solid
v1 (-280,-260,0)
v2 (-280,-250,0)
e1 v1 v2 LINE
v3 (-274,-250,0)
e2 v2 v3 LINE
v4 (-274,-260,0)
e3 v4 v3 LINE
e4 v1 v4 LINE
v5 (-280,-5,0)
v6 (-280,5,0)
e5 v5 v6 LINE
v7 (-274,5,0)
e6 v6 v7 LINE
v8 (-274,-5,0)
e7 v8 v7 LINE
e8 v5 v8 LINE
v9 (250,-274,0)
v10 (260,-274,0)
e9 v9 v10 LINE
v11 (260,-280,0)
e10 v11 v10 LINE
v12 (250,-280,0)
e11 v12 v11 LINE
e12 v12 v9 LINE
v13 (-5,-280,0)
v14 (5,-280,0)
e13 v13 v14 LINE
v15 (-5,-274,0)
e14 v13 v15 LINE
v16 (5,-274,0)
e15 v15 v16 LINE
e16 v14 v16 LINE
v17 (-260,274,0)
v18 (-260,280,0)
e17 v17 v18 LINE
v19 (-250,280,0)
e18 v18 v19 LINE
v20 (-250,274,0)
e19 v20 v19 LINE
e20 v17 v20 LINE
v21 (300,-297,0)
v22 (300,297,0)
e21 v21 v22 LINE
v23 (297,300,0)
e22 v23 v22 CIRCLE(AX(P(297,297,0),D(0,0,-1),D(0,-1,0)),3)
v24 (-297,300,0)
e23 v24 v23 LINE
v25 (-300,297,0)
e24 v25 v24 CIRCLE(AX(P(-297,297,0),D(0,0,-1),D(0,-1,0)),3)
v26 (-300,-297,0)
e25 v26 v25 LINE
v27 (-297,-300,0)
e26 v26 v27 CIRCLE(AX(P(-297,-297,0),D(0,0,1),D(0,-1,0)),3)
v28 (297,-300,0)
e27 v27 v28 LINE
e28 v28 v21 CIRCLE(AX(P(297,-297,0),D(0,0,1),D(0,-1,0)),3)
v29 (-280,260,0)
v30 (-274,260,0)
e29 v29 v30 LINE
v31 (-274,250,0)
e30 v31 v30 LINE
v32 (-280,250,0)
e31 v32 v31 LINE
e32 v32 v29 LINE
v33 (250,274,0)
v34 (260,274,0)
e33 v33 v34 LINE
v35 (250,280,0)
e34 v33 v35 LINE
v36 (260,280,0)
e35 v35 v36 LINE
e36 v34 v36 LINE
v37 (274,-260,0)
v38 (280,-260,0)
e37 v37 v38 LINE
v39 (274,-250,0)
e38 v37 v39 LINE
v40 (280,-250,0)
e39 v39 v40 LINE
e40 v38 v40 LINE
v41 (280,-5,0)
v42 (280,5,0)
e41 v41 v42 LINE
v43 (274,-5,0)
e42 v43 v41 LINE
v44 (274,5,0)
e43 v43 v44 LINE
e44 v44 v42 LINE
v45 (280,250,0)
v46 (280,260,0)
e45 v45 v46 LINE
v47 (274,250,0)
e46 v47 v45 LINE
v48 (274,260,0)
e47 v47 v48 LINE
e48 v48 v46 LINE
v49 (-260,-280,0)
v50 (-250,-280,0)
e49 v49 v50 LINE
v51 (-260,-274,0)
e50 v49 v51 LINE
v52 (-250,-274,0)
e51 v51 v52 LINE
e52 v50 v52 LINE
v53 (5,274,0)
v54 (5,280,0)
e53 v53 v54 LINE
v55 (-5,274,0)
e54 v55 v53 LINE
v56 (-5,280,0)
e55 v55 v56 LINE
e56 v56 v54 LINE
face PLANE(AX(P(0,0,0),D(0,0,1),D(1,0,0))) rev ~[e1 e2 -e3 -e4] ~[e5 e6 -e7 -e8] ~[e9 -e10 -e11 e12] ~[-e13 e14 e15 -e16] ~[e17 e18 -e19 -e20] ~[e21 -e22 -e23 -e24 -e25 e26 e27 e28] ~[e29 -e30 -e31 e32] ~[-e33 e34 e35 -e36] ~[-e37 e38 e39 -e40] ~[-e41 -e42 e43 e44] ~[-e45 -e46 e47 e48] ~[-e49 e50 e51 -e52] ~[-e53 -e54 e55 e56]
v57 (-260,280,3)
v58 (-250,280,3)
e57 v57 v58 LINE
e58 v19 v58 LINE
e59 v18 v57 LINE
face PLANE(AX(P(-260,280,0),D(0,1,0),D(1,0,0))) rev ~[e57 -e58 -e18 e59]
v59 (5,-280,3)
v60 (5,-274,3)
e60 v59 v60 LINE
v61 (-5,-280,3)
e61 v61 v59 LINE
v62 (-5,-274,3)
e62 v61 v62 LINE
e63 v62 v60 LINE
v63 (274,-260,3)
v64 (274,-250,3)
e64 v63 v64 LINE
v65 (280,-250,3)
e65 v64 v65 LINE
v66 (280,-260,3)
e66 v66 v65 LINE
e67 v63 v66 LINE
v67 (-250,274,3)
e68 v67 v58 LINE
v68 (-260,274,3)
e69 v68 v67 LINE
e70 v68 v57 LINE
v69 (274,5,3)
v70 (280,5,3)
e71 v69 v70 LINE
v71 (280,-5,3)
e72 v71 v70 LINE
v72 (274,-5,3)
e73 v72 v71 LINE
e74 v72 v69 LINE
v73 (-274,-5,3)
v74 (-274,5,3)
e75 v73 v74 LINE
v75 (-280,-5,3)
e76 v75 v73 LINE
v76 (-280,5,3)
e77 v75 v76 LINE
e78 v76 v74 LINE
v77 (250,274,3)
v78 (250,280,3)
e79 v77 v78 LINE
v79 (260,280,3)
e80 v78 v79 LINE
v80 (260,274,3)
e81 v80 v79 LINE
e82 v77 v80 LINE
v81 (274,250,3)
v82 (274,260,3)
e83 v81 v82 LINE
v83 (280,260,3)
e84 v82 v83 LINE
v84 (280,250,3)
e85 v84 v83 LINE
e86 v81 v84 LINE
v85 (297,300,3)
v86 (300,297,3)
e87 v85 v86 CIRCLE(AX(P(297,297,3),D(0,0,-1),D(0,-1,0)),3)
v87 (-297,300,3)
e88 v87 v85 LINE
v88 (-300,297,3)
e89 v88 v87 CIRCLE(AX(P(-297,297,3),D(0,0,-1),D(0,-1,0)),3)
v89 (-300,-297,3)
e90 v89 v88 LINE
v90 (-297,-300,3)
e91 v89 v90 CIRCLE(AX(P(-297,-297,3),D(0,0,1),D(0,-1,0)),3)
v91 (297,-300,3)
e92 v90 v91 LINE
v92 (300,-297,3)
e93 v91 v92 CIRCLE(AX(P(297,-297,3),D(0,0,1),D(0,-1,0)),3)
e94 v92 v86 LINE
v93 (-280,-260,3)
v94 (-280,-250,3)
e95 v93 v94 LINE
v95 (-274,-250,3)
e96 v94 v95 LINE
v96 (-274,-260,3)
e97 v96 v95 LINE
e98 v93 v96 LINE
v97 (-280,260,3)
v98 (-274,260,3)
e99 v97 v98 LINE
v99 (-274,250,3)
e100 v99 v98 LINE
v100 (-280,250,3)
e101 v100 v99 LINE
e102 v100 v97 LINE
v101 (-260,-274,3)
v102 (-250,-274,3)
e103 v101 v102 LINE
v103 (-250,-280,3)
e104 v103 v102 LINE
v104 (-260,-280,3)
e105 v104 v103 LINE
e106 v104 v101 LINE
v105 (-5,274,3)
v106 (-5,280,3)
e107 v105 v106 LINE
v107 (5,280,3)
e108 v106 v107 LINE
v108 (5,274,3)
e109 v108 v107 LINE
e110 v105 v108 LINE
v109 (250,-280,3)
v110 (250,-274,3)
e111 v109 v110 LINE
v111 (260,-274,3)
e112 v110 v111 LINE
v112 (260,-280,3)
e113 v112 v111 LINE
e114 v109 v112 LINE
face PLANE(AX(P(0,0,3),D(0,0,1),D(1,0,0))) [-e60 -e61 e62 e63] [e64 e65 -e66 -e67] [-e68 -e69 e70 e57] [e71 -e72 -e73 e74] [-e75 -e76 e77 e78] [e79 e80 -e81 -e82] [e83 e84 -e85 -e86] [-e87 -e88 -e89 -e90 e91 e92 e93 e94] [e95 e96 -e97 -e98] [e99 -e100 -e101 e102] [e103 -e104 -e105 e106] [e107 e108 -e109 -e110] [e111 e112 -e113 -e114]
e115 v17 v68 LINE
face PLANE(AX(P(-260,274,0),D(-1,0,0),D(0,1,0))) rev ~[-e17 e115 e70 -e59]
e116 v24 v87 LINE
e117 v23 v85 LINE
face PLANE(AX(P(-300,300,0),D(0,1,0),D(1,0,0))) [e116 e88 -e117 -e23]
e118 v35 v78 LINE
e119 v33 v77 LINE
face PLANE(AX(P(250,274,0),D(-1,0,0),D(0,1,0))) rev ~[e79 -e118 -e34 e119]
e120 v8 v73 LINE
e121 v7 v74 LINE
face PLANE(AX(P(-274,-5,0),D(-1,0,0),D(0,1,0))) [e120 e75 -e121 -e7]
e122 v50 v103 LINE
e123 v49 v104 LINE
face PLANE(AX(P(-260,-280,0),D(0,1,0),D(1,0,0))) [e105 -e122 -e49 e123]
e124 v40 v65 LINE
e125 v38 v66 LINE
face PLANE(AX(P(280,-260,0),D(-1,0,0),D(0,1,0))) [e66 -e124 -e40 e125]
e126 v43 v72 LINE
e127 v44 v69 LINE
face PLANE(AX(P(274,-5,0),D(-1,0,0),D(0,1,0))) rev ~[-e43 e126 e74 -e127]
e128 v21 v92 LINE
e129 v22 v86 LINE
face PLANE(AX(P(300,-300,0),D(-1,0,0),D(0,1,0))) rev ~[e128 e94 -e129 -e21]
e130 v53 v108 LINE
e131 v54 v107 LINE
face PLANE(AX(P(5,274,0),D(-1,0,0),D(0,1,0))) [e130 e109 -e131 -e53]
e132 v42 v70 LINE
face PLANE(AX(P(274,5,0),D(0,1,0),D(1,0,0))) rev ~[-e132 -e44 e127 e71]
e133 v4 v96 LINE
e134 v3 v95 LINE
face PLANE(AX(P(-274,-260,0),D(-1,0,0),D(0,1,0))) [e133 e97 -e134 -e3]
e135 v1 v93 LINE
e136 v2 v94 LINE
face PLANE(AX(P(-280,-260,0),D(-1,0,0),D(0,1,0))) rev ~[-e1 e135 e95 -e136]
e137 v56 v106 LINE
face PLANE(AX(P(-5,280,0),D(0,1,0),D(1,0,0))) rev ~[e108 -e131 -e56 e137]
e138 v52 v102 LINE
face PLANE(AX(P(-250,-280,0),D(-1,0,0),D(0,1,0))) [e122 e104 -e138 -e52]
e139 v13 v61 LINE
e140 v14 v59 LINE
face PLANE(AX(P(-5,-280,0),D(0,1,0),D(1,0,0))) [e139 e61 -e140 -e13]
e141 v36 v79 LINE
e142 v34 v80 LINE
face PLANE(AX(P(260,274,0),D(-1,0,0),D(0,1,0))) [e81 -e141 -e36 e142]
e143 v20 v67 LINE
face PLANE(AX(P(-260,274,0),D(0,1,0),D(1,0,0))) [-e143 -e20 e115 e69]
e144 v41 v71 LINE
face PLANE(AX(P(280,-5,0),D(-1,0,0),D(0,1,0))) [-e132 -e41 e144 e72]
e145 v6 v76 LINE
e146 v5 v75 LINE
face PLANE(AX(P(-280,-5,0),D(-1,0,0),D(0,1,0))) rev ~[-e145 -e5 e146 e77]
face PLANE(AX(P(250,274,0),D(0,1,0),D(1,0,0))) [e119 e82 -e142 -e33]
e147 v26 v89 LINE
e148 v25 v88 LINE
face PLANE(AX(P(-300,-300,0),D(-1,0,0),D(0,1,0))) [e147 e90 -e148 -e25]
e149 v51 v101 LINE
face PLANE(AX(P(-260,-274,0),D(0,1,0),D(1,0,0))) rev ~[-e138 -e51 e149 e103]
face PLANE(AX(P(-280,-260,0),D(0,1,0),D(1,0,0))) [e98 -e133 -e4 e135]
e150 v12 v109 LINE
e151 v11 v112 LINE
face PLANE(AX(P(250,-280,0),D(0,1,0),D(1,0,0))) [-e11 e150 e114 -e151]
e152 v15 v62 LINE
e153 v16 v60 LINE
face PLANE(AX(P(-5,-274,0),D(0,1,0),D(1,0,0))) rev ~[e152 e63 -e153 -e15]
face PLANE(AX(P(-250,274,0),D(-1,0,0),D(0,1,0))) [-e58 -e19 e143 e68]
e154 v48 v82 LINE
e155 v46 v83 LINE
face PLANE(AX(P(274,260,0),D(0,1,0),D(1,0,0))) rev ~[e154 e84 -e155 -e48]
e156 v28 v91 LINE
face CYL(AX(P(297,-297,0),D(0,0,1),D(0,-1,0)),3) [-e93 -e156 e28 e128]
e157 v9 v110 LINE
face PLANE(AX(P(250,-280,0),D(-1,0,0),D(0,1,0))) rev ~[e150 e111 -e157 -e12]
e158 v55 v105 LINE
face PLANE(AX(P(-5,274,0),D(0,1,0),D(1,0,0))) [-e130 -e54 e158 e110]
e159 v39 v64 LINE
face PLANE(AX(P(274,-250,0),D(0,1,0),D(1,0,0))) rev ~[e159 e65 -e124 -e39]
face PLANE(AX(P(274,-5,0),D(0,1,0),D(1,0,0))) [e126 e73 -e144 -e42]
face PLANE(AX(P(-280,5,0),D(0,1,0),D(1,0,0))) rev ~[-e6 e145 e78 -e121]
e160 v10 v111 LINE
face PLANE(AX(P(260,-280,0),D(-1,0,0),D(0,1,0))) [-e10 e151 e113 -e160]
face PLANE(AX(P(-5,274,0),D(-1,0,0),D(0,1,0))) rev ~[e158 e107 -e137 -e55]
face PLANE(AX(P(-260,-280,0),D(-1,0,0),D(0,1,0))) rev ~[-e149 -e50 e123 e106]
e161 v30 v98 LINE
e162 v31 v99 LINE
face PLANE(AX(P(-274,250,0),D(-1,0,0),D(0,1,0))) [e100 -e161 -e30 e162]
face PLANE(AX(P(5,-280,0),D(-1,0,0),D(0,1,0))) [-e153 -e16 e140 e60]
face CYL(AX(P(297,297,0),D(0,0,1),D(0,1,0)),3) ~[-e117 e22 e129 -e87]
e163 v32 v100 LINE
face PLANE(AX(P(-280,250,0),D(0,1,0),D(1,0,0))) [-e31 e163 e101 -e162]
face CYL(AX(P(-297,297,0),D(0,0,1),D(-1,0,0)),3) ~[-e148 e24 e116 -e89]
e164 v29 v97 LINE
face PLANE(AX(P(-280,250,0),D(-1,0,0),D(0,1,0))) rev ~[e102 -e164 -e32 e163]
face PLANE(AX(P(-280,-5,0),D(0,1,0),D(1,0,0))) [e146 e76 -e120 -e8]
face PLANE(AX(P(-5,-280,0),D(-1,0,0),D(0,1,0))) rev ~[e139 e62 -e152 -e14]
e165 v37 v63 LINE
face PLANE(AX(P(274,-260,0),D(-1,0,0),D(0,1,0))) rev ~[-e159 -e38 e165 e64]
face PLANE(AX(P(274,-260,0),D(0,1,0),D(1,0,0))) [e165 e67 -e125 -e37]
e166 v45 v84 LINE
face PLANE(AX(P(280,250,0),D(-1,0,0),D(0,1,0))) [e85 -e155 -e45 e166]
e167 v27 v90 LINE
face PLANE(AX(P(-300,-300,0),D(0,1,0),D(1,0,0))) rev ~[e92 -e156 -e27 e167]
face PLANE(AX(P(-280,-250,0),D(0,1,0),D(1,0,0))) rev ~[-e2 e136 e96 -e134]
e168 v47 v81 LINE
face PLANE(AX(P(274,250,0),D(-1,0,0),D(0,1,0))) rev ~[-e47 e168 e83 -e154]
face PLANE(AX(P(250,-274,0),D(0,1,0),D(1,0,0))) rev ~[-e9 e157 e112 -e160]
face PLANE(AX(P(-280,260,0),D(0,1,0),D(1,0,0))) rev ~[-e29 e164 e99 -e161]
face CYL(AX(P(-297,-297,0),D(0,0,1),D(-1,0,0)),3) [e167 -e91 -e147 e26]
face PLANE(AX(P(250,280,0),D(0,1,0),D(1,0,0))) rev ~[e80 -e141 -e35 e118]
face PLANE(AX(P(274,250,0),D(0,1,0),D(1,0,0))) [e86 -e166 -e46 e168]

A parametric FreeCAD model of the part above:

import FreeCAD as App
import Part
import Sketcher
from FreeCAD import Vector
Q = App.Units.Quantity


def edges_at(feature, points):
    """Names of the edges that pass closest to the given points."""
    edges = feature.Shape.Edges
    near = lambda p: min(range(len(edges)), key=lambda i: edges[i].distToShape(Part.Vertex(*p))[0])
    return sorted({f"Edge{near(p) + 1}" for p in points})


def add_polygon(sketch, points):
    """Adds a closed chain of lines whose ends are joined by coincident constraints."""
    first, n = sketch.GeometryCount, len(points)
    for a, b in zip(points, points[1:] + points[:1]):
        sketch.addGeometry(Part.LineSegment(App.Vector(*a, 0), App.Vector(*b, 0)), False)
    for i in range(n):
        sketch.addConstraint(Sketcher.Constraint("Coincident", first + i, 2, first + (i + 1) % n, 1))

doc = App.newDocument("Part")
body = doc.addObject("PartDesign::Body", "Body")

# Sketch on XY plane
sketch1 = doc.addObject("Sketcher::SketchObject", "Sketch")
body.addObject(sketch1)
sketch1.AttachmentSupport = (doc.XY_Plane, [""])
sketch1.MapMode = "FlatFace"
add_polygon(sketch1, [(-300, 300), (-300, -300), (300, -300), (300, 300)])  # lines 0-3
add_polygon(sketch1, [(-250, -280), (-260, -280), (-260, -274), (-250, -274)])  # lines 4-7
add_polygon(sketch1, [(-274, -260), (-280, -260), (-280, -250), (-274, -250)])  # lines 8-11
add_polygon(sketch1, [(5, -280), (-5, -280), (-5, -274), (5, -274)])  # lines 12-15
add_polygon(sketch1, [(260, -280), (250, -280), (250, -274), (260, -274)])  # lines 16-19
add_polygon(sketch1, [(280, -260), (274, -260), (274, -250), (280, -250)])  # lines 20-23
add_polygon(sketch1, [(-274, -5), (-280, -5), (-280, 5), (-274, 5)])  # lines 24-27
add_polygon(sketch1, [(-274, 250), (-280, 250), (-280, 260), (-274, 260)])  # lines 28-31
add_polygon(sketch1, [(-250, 274), (-260, 274), (-260, 280), (-250, 280)])  # lines 32-35
add_polygon(sketch1, [(280, -5), (274, -5), (274, 5), (280, 5)])  # lines 36-39
add_polygon(sketch1, [(5, 274), (-5, 274), (-5, 280), (5, 280)])  # lines 40-43
add_polygon(sketch1, [(280, 250), (274, 250), (274, 260), (280, 260)])  # lines 44-47
add_polygon(sketch1, [(260, 274), (250, 274), (250, 280), (260, 280)])  # lines 48-51
sketch1.addConstraint([
    Sketcher.Constraint("Vertical", 0),
    Sketcher.Constraint("Horizontal", 1),
    Sketcher.Constraint("Vertical", 2),
    Sketcher.Constraint("Horizontal", 3),
    Sketcher.Constraint("Horizontal", 4),
    Sketcher.Constraint("Vertical", 5),
    Sketcher.Constraint("Horizontal", 6),
    Sketcher.Constraint("Vertical", 7),
    Sketcher.Constraint("Horizontal", 8),
    Sketcher.Constraint("Vertical", 9),
    Sketcher.Constraint("Horizontal", 10),
    Sketcher.Constraint("Vertical", 11),
    Sketcher.Constraint("Horizontal", 12),
    Sketcher.Constraint("Vertical", 13),
    Sketcher.Constraint("Horizontal", 14),
    Sketcher.Constraint("Vertical", 15),
    Sketcher.Constraint("Horizontal", 16),
    Sketcher.Constraint("Vertical", 17),
    Sketcher.Constraint("Horizontal", 18),
    Sketcher.Constraint("Vertical", 19),
    Sketcher.Constraint("Horizontal", 20),
    Sketcher.Constraint("Vertical", 21),
    Sketcher.Constraint("Horizontal", 22),
    Sketcher.Constraint("Vertical", 23),
    Sketcher.Constraint("Horizontal", 24),
    Sketcher.Constraint("Vertical", 25),
    Sketcher.Constraint("Horizontal", 26),
    Sketcher.Constraint("Vertical", 27),
    Sketcher.Constraint("Horizontal", 28),
    Sketcher.Constraint("Vertical", 29),
    Sketcher.Constraint("Horizontal", 30),
    Sketcher.Constraint("Vertical", 31),
    Sketcher.Constraint("Horizontal", 32),
    Sketcher.Constraint("Vertical", 33),
    Sketcher.Constraint("Horizontal", 34),
    Sketcher.Constraint("Vertical", 35),
    Sketcher.Constraint("Horizontal", 36),
    Sketcher.Constraint("Vertical", 37),
    Sketcher.Constraint("Horizontal", 38),
    Sketcher.Constraint("Vertical", 39),
    Sketcher.Constraint("Horizontal", 40),
    Sketcher.Constraint("Vertical", 41),
    Sketcher.Constraint("Horizontal", 42),
    Sketcher.Constraint("Vertical", 43),
    Sketcher.Constraint("Horizontal", 44),
    Sketcher.Constraint("Vertical", 45),
    Sketcher.Constraint("Horizontal", 46),
    Sketcher.Constraint("Vertical", 47),
    Sketcher.Constraint("Horizontal", 48),
    Sketcher.Constraint("Vertical", 49),
    Sketcher.Constraint("Horizontal", 50),
    Sketcher.Constraint("Vertical", 51),
    Sketcher.Constraint("Symmetric", 0, 2, 2, 2, -1, 1),
    Sketcher.Constraint("Symmetric", 22, 2, 28, 2, -1, 1),
    Sketcher.Constraint("Symmetric", 20, 2, 30, 2, -1, 1),
    Sketcher.Constraint("Symmetric", 18, 2, 32, 2, -1, 1),
    Sketcher.Constraint("Symmetric", 16, 2, 34, 2, -1, 1),
    Sketcher.Constraint("Symmetric", 26, 2, 36, 2, -1, 1),
    Sketcher.Constraint("Symmetric", 24, 2, 38, 2, -1, 1),
    Sketcher.Constraint("Symmetric", 14, 2, 40, 2, -1, 1),
    Sketcher.Constraint("Symmetric", 12, 2, 42, 2, -1, 1),
    Sketcher.Constraint("Symmetric", 10, 2, 44, 2, -1, 1),
    Sketcher.Constraint("Symmetric", 8, 2, 46, 2, -1, 1),
    Sketcher.Constraint("Symmetric", 6, 2, 48, 2, -1, 1),
    Sketcher.Constraint("Symmetric", 4, 2, 50, 2, -1, 1),
    Sketcher.Constraint("Symmetric", 7, 2, 16, 2, -2),
    Sketcher.Constraint("Symmetric", 5, 2, 18, 2, -2),
    Sketcher.Constraint("Symmetric", 11, 2, 20, 2, -2),
    Sketcher.Constraint("Symmetric", 9, 2, 22, 2, -2),
    Sketcher.Constraint("Horizontal", 7, 2, 12, 2),
    Sketcher.Constraint("Horizontal", 6, 2, 13, 2),
    Sketcher.Constraint("Horizontal", 27, 2, 36, 2),
    Sketcher.Constraint("Vertical", 9, 2, 24, 2),
    Sketcher.Constraint("Vertical", 11, 2, 26, 2),
    Sketcher.Constraint("Vertical", 13, 2, 40, 2),
    Sketcher.Constraint("Equal", 6, 12),
    Sketcher.Constraint("Equal", 3, 0),
    Sketcher.Constraint("Equal", 46, 5),
    Sketcher.Constraint("Equal", 50, 9),
    Sketcher.Constraint("Equal", 23, 25),
    Sketcher.Constraint("DistanceX", 1, 1, 1, 2, Q("600 mm")),
    Sketcher.Constraint("DistanceX", 4, 2, 4, 1, Q("10 mm")),
    Sketcher.Constraint("DistanceX", 8, 2, 8, 1, Q("6 mm")),
    Sketcher.Constraint("DistanceX", 4, 2, -1, 1, Q("260 mm")),
    Sketcher.Constraint("DistanceY", 4, 2, -1, 1, Q("280 mm")),
    Sketcher.Constraint("DistanceX", 8, 2, -1, 1, Q("280 mm")),
    Sketcher.Constraint("DistanceY", 8, 2, -1, 1, Q("260 mm")),
])
pad1 = doc.addObject("PartDesign::Pad", "Pad")
body.addObject(pad1)
pad1.Profile = sketch1
pad1.Length = 3
doc.recompute()

fillet = doc.addObject("PartDesign::Fillet", "Fillet")
body.addObject(fillet)
fillet.Base = (pad1, edges_at(pad1, [
    (300, 300, 1.5),
    (300, -300, 1.5),
    (-300, -300, 1.5),
    (-300, 300, 1.5),
]))
fillet.Radius = 3

doc.recompute()
